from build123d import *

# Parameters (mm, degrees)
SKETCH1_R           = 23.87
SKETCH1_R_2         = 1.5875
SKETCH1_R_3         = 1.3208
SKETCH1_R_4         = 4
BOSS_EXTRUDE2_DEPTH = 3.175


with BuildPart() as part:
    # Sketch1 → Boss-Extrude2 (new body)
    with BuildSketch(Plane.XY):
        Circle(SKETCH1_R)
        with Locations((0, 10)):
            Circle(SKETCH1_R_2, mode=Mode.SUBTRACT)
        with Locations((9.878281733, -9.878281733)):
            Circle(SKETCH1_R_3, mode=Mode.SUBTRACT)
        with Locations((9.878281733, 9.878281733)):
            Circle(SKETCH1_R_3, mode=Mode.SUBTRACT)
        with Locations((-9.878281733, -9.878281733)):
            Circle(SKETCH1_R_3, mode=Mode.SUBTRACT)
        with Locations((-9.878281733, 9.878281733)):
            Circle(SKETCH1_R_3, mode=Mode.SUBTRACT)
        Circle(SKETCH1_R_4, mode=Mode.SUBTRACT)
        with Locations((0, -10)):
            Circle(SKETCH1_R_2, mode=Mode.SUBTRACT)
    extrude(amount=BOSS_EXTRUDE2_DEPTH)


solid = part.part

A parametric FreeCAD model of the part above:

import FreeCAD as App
import Part
import Sketcher

V = App.Vector
Q = App.Units.Quantity

doc = App.newDocument("Part")
body = doc.addObject("PartDesign::Body", "Body")

# Sketch on XY plane
sketch1 = body.newObject("Sketcher::SketchObject", "Sketch")
sketch1.AttachmentSupport = (doc.getObject("XY_Plane"), [""])
sketch1.MapMode = "FlatFace"
sketch1.addGeometry(Part.Circle(V(0, 0, 0), V(0, 0, 1), 23.87), False)
sketch1.addGeometry(Part.Circle(V(-9.878282, -9.878282, 0), V(0, 0, 1), 1.3208), False)
sketch1.addGeometry(Part.Circle(V(0, -10, 0), V(0, 0, 1), 1.5875), False)
sketch1.addGeometry(Part.Circle(V(9.878282, -9.878282, 0), V(0, 0, 1), 1.3208), False)
sketch1.addGeometry(Part.Circle(V(0, 0, 0), V(0, 0, 1), 4), False)
sketch1.addGeometry(Part.Circle(V(-9.878282, 9.878282, 0), V(0, 0, 1), 1.3208), False)
sketch1.addGeometry(Part.Circle(V(0, 10, 0), V(0, 0, 1), 1.5875), False)
sketch1.addGeometry(Part.Circle(V(9.878282, 9.878282, 0), V(0, 0, 1), 1.3208), False)
sketch1.addConstraint(Sketcher.Constraint("Coincident", 0, 3, -1, 1))
sketch1.addConstraint(Sketcher.Constraint("Coincident", 4, 3, -1, 1))
sketch1.addConstraint(Sketcher.Constraint("Equal", 1, 3))
sketch1.addConstraint(Sketcher.Constraint("Equal", 3, 5))
sketch1.addConstraint(Sketcher.Constraint("Equal", 2, 6))
sketch1.addConstraint(Sketcher.Constraint("Equal", 5, 7))
sketch1.addConstraint(Sketcher.Constraint("Symmetric", 3, 3, 5, 3, -1, 1))
sketch1.addConstraint(Sketcher.Constraint("Symmetric", 2, 3, 6, 3, -1, 1))
sketch1.addConstraint(Sketcher.Constraint("Symmetric", 1, 3, 7, 3, -1, 1))
sketch1.addConstraint(Sketcher.Constraint("Symmetric", 1, 3, 3, 3, -2))
sketch1.addConstraint(Sketcher.Constraint("PointOnObject", 2, 3, -2))
sketch1.addConstraint(Sketcher.Constraint("Diameter", 1, Q("0.104 in")))
sketch1.addConstraint(Sketcher.Constraint("Diameter", 2, Q("0.125 in")))
sketch1.addConstraint(Sketcher.Constraint("Diameter", 0, Q("47.74 mm")))
sketch1.addConstraint(Sketcher.Constraint("Diameter", 4, Q("8 mm")))
sketch1.addConstraint(Sketcher.Constraint("DistanceY", 2, 3, -1, 1, Q("10 mm")))
sketch1.addConstraint(Sketcher.Constraint("DistanceX", 1, 3, -1, 1, Q("9.878282 mm")))
sketch1.addConstraint(Sketcher.Constraint("DistanceY", 1, 3, -1, 1, Q("9.878282 mm")))
pad1 = body.newObject("PartDesign::Pad", "Pad")
pad1.Profile = sketch1
pad1.Length = Q("0.125 in")

doc.recompute()
